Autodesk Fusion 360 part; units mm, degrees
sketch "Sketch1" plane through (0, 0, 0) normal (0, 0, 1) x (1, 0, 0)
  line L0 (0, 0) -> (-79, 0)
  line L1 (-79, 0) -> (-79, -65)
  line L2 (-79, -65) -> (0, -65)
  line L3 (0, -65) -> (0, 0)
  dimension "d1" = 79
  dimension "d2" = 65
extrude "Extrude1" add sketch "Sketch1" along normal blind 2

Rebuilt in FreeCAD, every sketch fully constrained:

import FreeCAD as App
import Part
import Sketcher
Q = App.Units.Quantity


def add_polygon(sketch, points):
    """Adds a closed chain of lines whose ends are joined by coincident constraints."""
    first, n = sketch.GeometryCount, len(points)
    for a, b in zip(points, points[1:] + points[:1]):
        sketch.addGeometry(Part.LineSegment(App.Vector(*a, 0), App.Vector(*b, 0)), False)
    for i in range(n):
        sketch.addConstraint(Sketcher.Constraint("Coincident", first + i, 2, first + (i + 1) % n, 1))

doc = App.newDocument("Part")
body = doc.addObject("PartDesign::Body", "Body")

# Sketch on XY plane
sketch1 = doc.addObject("Sketcher::SketchObject", "Sketch")
body.addObject(sketch1)
sketch1.AttachmentSupport = (doc.XY_Plane, [""])
sketch1.MapMode = "FlatFace"
add_polygon(sketch1, [(0, -65), (0, 0), (-79, 0), (-79, -65)])  # lines 0-3
sketch1.addConstraint(Sketcher.Constraint("Vertical", 0))
sketch1.addConstraint(Sketcher.Constraint("Horizontal", 1))
sketch1.addConstraint(Sketcher.Constraint("Vertical", 2))
sketch1.addConstraint(Sketcher.Constraint("Horizontal", 3))
sketch1.addConstraint(Sketcher.Constraint("Coincident", 0, 2, -1, 1))
sketch1.addConstraint(Sketcher.Constraint("DistanceX", 1, 2, 1, 1, Q("79 mm")))
sketch1.addConstraint(Sketcher.Constraint("DistanceY", 0, 1, 0, 2, Q("65 mm")))
pad1 = doc.addObject("PartDesign::Pad", "Pad")
body.addObject(pad1)
pad1.Profile = sketch1
pad1.Length = 2

doc.recompute()
